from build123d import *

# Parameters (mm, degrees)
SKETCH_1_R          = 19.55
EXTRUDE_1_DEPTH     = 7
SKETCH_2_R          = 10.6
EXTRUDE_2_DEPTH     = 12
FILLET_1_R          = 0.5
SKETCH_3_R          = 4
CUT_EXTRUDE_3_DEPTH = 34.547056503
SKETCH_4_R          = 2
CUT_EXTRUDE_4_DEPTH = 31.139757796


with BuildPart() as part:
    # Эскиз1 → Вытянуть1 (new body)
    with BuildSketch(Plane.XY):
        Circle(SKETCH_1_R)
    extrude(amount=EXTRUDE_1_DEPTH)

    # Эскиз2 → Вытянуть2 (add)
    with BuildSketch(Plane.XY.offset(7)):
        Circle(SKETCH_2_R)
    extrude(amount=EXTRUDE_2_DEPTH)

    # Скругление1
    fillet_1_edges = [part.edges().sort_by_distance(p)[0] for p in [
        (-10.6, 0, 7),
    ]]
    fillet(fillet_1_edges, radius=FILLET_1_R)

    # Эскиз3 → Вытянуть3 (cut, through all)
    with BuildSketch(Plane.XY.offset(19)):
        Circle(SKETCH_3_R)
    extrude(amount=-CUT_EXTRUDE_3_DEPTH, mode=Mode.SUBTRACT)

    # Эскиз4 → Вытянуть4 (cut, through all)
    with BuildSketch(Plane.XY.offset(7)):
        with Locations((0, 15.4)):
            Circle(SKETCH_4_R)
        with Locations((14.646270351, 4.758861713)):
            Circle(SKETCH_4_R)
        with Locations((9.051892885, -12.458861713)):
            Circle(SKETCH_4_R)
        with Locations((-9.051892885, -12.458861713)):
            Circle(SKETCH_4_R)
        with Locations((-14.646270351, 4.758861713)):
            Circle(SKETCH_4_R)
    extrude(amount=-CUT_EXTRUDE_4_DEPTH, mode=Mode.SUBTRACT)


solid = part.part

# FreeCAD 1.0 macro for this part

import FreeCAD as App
import Part
import Sketcher
Q = App.Units.Quantity


def edges_at(feature, points):
    """Names of the edges that pass closest to the given points."""
    edges = feature.Shape.Edges
    near = lambda p: min(range(len(edges)), key=lambda i: edges[i].distToShape(Part.Vertex(*p))[0])
    return sorted({f"Edge{near(p) + 1}" for p in points})

doc = App.newDocument("Part")
body = doc.addObject("PartDesign::Body", "Body")

sketch1 = doc.addObject("Sketcher::SketchObject", "Sketch")
body.addObject(sketch1)
sketch1.AttachmentSupport = (doc.XY_Plane, [""])
sketch1.MapMode = "FlatFace"
sketch1.addGeometry(Part.Circle(App.Vector(0, 0, 0), App.Vector(0, 0, 1), 19.55), False)
sketch1.addConstraint(Sketcher.Constraint("Coincident", 0, 3, -1, 1))
sketch1.addConstraint(Sketcher.Constraint("Diameter", 0, Q("39.1 mm")))
pad1 = doc.addObject("PartDesign::Pad", "Pad")
body.addObject(pad1)
pad1.Profile = sketch1
pad1.Length = 7

sketch2 = doc.addObject("Sketcher::SketchObject", "Sketch001")
body.addObject(sketch2)
sketch2.AttachmentSupport = (doc.XY_Plane, [""])
sketch2.MapMode = "FlatFace"
sketch2.AttachmentOffset = App.Placement(App.Vector(0, 0, 7), App.Rotation())
sketch2.addGeometry(Part.Circle(App.Vector(0, 0, 0), App.Vector(0, 0, 1), 10.6), False)
sketch2.addConstraint(Sketcher.Constraint("Coincident", 0, 3, -1, 1))
sketch2.addConstraint(Sketcher.Constraint("Diameter", 0, Q("21.2 mm")))
pad2 = doc.addObject("PartDesign::Pad", "Pad001")
body.addObject(pad2)
pad2.Profile = sketch2
pad2.Length = 12
doc.recompute()

fillet = doc.addObject("PartDesign::Fillet", "Fillet")
body.addObject(fillet)
fillet.Base = (pad2, edges_at(pad2, [(-10.6, 0, 7)]))
fillet.Radius = 0.5

sketch3 = doc.addObject("Sketcher::SketchObject", "Sketch002")
body.addObject(sketch3)
sketch3.AttachmentSupport = (doc.XY_Plane, [""])
sketch3.MapMode = "FlatFace"
sketch3.AttachmentOffset = App.Placement(App.Vector(0, 0, 19), App.Rotation())
sketch3.addGeometry(Part.Circle(App.Vector(0, 0, 0), App.Vector(0, 0, 1), 4), False)
sketch3.addConstraint(Sketcher.Constraint("Coincident", 0, 3, -1, 1))
sketch3.addConstraint(Sketcher.Constraint("Diameter", 0, Q("8 mm")))
pocket1 = doc.addObject("PartDesign::Pocket", "Pocket")
body.addObject(pocket1)
pocket1.Profile = sketch3
pocket1.Type = "ThroughAll"

sketch4 = doc.addObject("Sketcher::SketchObject", "Sketch003")
body.addObject(sketch4)
sketch4.AttachmentSupport = (doc.XY_Plane, [""])
sketch4.MapMode = "FlatFace"
sketch4.AttachmentOffset = App.Placement(App.Vector(0, 0, 7), App.Rotation())
sketch4.addGeometry(Part.Circle(App.Vector(0, 15.4, 0), App.Vector(0, 0, 1), 2), False)
sketch4.addGeometry(Part.Circle(App.Vector(14.64627, 4.758862, 0), App.Vector(0, 0, 1), 2), False)
sketch4.addGeometry(Part.Circle(App.Vector(9.051893, -12.458862, 0), App.Vector(0, 0, 1), 2), False)
sketch4.addGeometry(Part.Circle(App.Vector(-9.051893, -12.458862, 0), App.Vector(0, 0, 1), 2), False)
sketch4.addGeometry(Part.Circle(App.Vector(-14.64627, 4.758862, 0), App.Vector(0, 0, 1), 2), False)
sketch4.addConstraint(Sketcher.Constraint("Equal", 0, 1))
sketch4.addConstraint(Sketcher.Constraint("Equal", 1, 2))
sketch4.addConstraint(Sketcher.Constraint("Equal", 2, 3))
sketch4.addConstraint(Sketcher.Constraint("Equal", 3, 4))
sketch4.addConstraint(Sketcher.Constraint("Symmetric", 2, 3, 3, 3, -2))
sketch4.addConstraint(Sketcher.Constraint("Symmetric", 1, 3, 4, 3, -2))
sketch4.addConstraint(Sketcher.Constraint("PointOnObject", 0, 3, -2))
sketch4.addConstraint(Sketcher.Constraint("Diameter", 0, Q("4 mm")))
sketch4.addConstraint(Sketcher.Constraint("DistanceY", -1, 1, 0, 3, Q("15.4 mm")))
sketch4.addConstraint(Sketcher.Constraint("DistanceX", -1, 1, 1, 3, Q("14.64627 mm")))
sketch4.addConstraint(Sketcher.Constraint("DistanceY", -1, 1, 1, 3, Q("4.758862 mm")))
sketch4.addConstraint(Sketcher.Constraint("DistanceY", 2, 3, -1, 1, Q("12.458862 mm")))
sketch4.addConstraint(Sketcher.Constraint("DistanceX", -1, 1, 2, 3, Q("9.051893 mm")))
pocket2 = doc.addObject("PartDesign::Pocket", "Pocket001")
body.addObject(pocket2)
pocket2.Profile = sketch4
pocket2.Type = "ThroughAll"

doc.recompute()
